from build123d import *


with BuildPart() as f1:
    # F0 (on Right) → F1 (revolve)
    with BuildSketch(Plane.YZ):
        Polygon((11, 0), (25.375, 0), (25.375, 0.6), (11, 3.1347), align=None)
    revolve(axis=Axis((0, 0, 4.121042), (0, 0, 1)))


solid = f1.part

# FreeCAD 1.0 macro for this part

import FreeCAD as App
import Part
import Sketcher
Q = App.Units.Quantity


def add_polygon(sketch, points):
    """Adds a closed chain of lines whose ends are joined by coincident constraints."""
    first, n = sketch.GeometryCount, len(points)
    for a, b in zip(points, points[1:] + points[:1]):
        sketch.addGeometry(Part.LineSegment(App.Vector(*a, 0), App.Vector(*b, 0)), False)
    for i in range(n):
        sketch.addConstraint(Sketcher.Constraint("Coincident", first + i, 2, first + (i + 1) % n, 1))

doc = App.newDocument("Part")
params = doc.addObject("Spreadsheet::Sheet", "Params")
for row, (alias, value) in enumerate([
    ("sketch1_height", "0.6 mm"),
    ("revolution_angle", "360 deg"),
], start=1):
    params.set(f"A{row}", alias)
    params.set(f"B{row}", "=" + value)
    params.setAlias(f"B{row}", alias)

body = doc.addObject("PartDesign::Body", "Body")

sketch1 = body.newObject("Sketcher::SketchObject", "Sketch")
sketch1.AttachmentSupport = (doc.getObject("YZ_Plane"), [""])
sketch1.MapMode = "FlatFace"
add_polygon(sketch1, [(11, 0), (25.4, 0), (25.4, 0.6), (11, 3.1)])
sketch1.addConstraint([
    Sketcher.Constraint("Horizontal", 0),
    Sketcher.Constraint("Vertical", 1),
    Sketcher.Constraint("Vertical", 3),
    Sketcher.Constraint("PointOnObject", 0, 2, -1),
    Sketcher.Constraint("Angle", 2, Q("170.000001 deg")),
    Sketcher.Constraint("DistanceY", 1, 1, 1, 2, Q("0.6 mm")),
    Sketcher.Constraint("DistanceX", -1, 1, 2, 2, Q("11 mm")),
    Sketcher.Constraint("DistanceX", 0, 1, 0, 2, Q("14.375 mm")),
])
sketch1.setExpression("Constraints[9]", "Params.sketch1_height")
revolution = body.newObject("PartDesign::Revolution", "Revolution")
revolution.Profile = sketch1
revolution.ReferenceAxis = (sketch1, ["V_Axis"])
revolution.setExpression("Angle", "Params.revolution_angle")

doc.recompute()
